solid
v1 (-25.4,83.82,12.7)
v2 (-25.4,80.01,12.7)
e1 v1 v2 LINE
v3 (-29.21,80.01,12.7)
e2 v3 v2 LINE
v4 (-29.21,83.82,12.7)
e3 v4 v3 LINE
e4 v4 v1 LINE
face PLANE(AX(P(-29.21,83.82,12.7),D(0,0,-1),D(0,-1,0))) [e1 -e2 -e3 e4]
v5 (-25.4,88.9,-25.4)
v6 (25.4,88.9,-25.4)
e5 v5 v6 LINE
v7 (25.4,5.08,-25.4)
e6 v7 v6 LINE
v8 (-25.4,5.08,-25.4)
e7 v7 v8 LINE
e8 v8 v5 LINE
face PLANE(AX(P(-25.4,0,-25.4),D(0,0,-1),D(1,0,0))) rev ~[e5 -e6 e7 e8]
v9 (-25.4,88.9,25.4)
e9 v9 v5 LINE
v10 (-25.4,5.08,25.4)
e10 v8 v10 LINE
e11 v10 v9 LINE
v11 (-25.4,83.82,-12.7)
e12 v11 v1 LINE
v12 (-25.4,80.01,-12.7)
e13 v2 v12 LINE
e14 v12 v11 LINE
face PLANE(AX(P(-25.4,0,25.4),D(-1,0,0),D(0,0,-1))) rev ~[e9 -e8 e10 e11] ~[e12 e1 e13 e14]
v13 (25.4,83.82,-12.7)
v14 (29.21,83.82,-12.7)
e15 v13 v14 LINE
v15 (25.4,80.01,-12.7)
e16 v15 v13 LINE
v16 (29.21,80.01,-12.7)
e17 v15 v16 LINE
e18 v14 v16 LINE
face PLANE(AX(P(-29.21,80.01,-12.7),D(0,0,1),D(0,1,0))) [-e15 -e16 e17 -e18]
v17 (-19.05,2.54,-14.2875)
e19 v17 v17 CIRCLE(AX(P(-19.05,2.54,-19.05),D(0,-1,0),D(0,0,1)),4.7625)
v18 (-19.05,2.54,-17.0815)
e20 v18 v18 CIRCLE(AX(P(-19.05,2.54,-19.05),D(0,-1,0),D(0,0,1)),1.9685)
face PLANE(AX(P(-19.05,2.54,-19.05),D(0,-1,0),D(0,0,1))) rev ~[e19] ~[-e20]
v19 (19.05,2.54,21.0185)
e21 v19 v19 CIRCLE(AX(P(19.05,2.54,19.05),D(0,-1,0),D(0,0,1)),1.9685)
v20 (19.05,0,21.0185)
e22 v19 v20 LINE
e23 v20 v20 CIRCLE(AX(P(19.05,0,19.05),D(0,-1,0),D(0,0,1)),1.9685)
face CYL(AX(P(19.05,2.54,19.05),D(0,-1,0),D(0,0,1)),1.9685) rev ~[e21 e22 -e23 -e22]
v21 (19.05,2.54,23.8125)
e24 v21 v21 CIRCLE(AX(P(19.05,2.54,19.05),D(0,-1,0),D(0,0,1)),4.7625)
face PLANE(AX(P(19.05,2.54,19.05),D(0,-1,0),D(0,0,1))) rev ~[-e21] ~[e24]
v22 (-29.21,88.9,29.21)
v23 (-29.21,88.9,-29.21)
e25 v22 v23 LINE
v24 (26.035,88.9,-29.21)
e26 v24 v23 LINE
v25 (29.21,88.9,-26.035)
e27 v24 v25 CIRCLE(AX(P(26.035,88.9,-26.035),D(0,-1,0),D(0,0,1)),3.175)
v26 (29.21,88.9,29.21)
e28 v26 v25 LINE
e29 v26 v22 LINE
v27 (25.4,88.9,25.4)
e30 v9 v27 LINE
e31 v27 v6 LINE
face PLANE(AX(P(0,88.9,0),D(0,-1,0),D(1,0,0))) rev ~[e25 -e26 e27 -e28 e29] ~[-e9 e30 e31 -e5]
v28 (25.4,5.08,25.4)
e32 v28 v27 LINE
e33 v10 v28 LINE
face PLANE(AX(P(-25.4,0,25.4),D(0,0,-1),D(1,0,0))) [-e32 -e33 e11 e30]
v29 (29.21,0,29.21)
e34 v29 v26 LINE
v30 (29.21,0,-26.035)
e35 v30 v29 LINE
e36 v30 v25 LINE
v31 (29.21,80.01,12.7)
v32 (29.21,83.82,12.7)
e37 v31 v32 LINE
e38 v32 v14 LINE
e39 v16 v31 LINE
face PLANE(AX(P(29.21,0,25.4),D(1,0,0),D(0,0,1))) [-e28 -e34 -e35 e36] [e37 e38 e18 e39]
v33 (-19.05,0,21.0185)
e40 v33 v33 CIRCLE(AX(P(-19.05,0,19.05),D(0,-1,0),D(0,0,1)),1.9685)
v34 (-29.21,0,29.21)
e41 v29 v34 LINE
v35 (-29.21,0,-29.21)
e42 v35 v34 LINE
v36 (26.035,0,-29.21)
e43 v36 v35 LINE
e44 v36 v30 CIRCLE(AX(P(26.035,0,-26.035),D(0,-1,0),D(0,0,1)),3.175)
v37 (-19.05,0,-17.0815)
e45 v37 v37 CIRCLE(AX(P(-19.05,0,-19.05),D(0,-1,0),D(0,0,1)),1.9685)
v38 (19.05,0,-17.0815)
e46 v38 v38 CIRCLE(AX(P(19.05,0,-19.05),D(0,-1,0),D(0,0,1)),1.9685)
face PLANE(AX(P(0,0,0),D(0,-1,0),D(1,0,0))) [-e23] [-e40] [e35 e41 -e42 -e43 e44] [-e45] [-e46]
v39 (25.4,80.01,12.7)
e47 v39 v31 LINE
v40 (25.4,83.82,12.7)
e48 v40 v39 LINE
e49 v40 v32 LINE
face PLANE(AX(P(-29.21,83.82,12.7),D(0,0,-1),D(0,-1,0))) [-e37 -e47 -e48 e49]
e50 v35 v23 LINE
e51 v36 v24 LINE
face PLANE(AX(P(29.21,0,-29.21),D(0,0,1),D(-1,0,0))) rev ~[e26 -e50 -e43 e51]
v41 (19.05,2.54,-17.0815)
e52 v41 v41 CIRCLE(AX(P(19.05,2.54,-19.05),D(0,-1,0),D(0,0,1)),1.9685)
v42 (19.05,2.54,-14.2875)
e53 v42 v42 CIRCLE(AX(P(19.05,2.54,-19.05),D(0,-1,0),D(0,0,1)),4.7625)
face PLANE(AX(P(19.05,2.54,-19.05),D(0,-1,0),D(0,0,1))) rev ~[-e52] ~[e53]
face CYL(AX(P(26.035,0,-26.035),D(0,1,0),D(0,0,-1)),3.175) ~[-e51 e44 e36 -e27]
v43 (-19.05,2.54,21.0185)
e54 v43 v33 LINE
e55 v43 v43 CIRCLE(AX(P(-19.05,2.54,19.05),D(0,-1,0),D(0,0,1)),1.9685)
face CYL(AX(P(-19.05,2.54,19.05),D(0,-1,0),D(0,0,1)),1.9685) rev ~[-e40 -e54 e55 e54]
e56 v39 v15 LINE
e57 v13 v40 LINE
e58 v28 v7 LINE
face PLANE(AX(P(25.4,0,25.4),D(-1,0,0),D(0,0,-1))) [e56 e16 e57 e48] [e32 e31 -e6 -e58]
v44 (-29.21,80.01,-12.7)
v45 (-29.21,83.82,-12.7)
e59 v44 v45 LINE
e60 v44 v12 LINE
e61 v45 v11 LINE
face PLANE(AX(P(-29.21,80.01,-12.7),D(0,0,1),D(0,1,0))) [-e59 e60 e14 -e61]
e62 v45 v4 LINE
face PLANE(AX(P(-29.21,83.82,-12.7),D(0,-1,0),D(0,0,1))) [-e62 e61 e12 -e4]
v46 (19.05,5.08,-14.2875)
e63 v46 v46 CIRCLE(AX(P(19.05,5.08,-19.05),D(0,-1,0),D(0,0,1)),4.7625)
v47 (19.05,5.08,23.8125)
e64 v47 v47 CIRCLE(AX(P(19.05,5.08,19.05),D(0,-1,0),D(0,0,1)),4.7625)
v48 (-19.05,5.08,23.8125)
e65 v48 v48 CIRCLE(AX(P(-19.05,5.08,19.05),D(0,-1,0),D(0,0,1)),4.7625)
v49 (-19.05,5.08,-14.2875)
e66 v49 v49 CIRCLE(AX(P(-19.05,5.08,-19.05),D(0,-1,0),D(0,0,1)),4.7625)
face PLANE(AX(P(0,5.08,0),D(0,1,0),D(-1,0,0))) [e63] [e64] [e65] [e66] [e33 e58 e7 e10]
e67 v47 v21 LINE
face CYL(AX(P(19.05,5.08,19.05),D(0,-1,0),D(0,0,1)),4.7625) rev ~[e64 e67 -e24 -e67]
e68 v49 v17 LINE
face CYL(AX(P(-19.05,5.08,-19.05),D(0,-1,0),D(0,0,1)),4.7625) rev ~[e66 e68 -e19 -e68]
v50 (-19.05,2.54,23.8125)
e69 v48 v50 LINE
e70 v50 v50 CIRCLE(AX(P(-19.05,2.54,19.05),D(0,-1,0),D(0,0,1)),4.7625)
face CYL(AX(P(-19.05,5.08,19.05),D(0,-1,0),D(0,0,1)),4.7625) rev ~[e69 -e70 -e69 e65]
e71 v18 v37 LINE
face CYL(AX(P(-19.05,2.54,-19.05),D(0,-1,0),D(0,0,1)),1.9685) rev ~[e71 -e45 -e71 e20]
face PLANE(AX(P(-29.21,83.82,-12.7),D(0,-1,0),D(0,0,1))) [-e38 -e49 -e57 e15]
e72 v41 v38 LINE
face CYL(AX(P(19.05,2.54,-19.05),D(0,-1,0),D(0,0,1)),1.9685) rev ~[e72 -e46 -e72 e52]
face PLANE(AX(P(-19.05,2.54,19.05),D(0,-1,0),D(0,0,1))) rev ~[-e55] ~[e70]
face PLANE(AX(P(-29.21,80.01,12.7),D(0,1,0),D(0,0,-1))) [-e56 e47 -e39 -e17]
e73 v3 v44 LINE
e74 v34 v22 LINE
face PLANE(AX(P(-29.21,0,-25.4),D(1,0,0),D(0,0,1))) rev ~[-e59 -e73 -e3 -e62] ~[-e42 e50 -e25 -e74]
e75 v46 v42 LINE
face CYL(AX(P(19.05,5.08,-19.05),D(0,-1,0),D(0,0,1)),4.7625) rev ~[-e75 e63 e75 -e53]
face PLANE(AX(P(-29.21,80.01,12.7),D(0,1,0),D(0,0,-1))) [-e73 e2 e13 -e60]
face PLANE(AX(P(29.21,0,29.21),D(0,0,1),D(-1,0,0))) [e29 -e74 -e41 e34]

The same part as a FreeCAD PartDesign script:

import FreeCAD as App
import Part
import Sketcher
from FreeCAD import Vector
Q = App.Units.Quantity


def edges_at(feature, points):
    """Names of the edges that pass closest to the given points."""
    edges = feature.Shape.Edges
    near = lambda p: min(range(len(edges)), key=lambda i: edges[i].distToShape(Part.Vertex(*p))[0])
    return sorted({f"Edge{near(p) + 1}" for p in points})

doc = App.newDocument("Part")
body = doc.addObject("PartDesign::Body", "Body")

sketch1 = body.newObject("Sketcher::SketchObject", "Sketch")
sketch1.AttachmentSupport = (doc.getObject("XZ_Plane"), [""])
sketch1.MapMode = "FlatFace"
sketch1.addGeometry([
    Part.LineSegment(Vector(-25, -25, 0), Vector(-25, 25, 0)),
    Part.LineSegment(Vector(-25, 25, 0), Vector(25, 25, 0)),
    Part.LineSegment(Vector(25, 25, 0), Vector(25, -25, 0)),
    Part.LineSegment(Vector(25, -25, 0), Vector(-25, -25, 0)),
], False)
sketch1.addConstraint([
    Sketcher.Constraint("Coincident", 0, 2, 1, 1),
    Sketcher.Constraint("Coincident", 1, 2, 2, 1),
    Sketcher.Constraint("Coincident", 2, 2, 3, 1),
    Sketcher.Constraint("Coincident", 3, 2, 0, 1),
    Sketcher.Constraint("Vertical", 0),
    Sketcher.Constraint("Horizontal", 1),
    Sketcher.Constraint("Vertical", 2),
    Sketcher.Constraint("Horizontal", 3),
    Sketcher.Constraint("Symmetric", 0, 2, 2, 2, -1, 1),
    Sketcher.Constraint("Equal", 3, 0),
    Sketcher.Constraint("DistanceX", 1, 1, 1, 2, Q("2 in")),
])
pad1 = body.newObject("PartDesign::Pad", "Pad")
pad1.Profile = sketch1
pad1.Length = Q("0.2 in")
pad1.Reversed = True

sketch2 = body.newObject("Sketcher::SketchObject", "Sketch001")
sketch2.AttachmentSupport = (doc.getObject("XZ_Plane"), [""])
sketch2.MapMode = "FlatFace"
sketch2.AttachmentOffset = App.Placement(Vector(0, 0, -0.2 * 25.4), App.Rotation())
sketch2.addGeometry([
    Part.Circle(Vector(-19.1, 19.1, 0), Vector(0, 0, 1), 2),
    Part.Circle(Vector(19.1, 19.1, 0), Vector(0, 0, 1), 2),
    Part.Circle(Vector(19.1, -19.1, 0), Vector(0, 0, 1), 2),
    Part.Circle(Vector(-19.1, -19.1, 0), Vector(0, 0, 1), 2),
], False)
sketch2.addConstraint([
    Sketcher.Constraint("Equal", 0, 1),
    Sketcher.Constraint("Equal", 1, 2),
    Sketcher.Constraint("Equal", 2, 3),
    Sketcher.Constraint("Symmetric", 0, 3, 2, 3, -1, 1),
    Sketcher.Constraint("Symmetric", 1, 3, 3, 3, -1, 1),
    Sketcher.Constraint("Symmetric", 0, 3, 1, 3, -2),
    Sketcher.Constraint("Diameter", 0, Q("0.155 in")),
    Sketcher.Constraint("DistanceX", 0, 3, 1, 3, Q("1.5 in")),
    Sketcher.Constraint("DistanceY", 2, 3, 1, 3, Q("1.5 in")),
])
doc.recompute()
hole = body.newObject("PartDesign::Hole", "Hole")
hole.Profile = sketch2
hole.ThreadType = "None"
hole.Diameter = Q("0.155 in")
hole.DepthType = "ThroughAll"
hole.HoleCutType = "Counterbore"
hole.HoleCutDiameter = Q("0.375 in")
hole.HoleCutDepth = Q("0.1 in")
hole.Reversed = True

sketch3 = body.newObject("Sketcher::SketchObject", "Sketch002")
sketch3.AttachmentSupport = (doc.getObject("XZ_Plane"), [""])
sketch3.MapMode = "FlatFace"
sketch3.addGeometry([
    Part.LineSegment(Vector(-29, 29, 0), Vector(-29, -29, 0)),
    Part.LineSegment(Vector(-29, -29, 0), Vector(29, -29, 0)),
    Part.LineSegment(Vector(29, -29, 0), Vector(29, 29, 0)),
    Part.LineSegment(Vector(29, 29, 0), Vector(-29, 29, 0)),
    Part.LineSegment(Vector(-25, -25, 0), Vector(-25, 25, 0)),
    Part.LineSegment(Vector(-25, 25, 0), Vector(25, 25, 0)),
    Part.LineSegment(Vector(25, 25, 0), Vector(25, -25, 0)),
    Part.LineSegment(Vector(25, -25, 0), Vector(-25, -25, 0)),
], False)
sketch3.addConstraint([
    Sketcher.Constraint("Coincident", 0, 2, 1, 1),
    Sketcher.Constraint("Coincident", 1, 2, 2, 1),
    Sketcher.Constraint("Coincident", 2, 2, 3, 1),
    Sketcher.Constraint("Coincident", 3, 2, 0, 1),
    Sketcher.Constraint("Coincident", 4, 2, 5, 1),
    Sketcher.Constraint("Coincident", 5, 2, 6, 1),
    Sketcher.Constraint("Coincident", 6, 2, 7, 1),
    Sketcher.Constraint("Coincident", 7, 2, 4, 1),
    Sketcher.Constraint("Vertical", 0),
    Sketcher.Constraint("Horizontal", 1),
    Sketcher.Constraint("Vertical", 2),
    Sketcher.Constraint("Horizontal", 3),
    Sketcher.Constraint("Vertical", 4),
    Sketcher.Constraint("Horizontal", 5),
    Sketcher.Constraint("Vertical", 6),
    Sketcher.Constraint("Horizontal", 7),
    Sketcher.Constraint("Symmetric", 0, 2, 2, 2, -1, 1),
    Sketcher.Constraint("Symmetric", 4, 2, 6, 2, -1, 1),
    Sketcher.Constraint("Equal", 3, 0),
    Sketcher.Constraint("Equal", 7, 4),
    Sketcher.Constraint("DistanceX", 1, 1, 1, 2, Q("2.3 in")),
    Sketcher.Constraint("DistanceX", 5, 1, 5, 2, Q("2 in")),
])
pad2 = body.newObject("PartDesign::Pad", "Pad001")
pad2.Profile = sketch3
pad2.Length = Q("3.5 in")
pad2.Reversed = True
doc.recompute()

fillet = body.newObject("PartDesign::Fillet", "Fillet")
fillet.Base = (pad2, edges_at(pad2, [(29.21, 44.45, -29.21)]))
fillet.Radius = Q("0.125 in")

sketch4 = body.newObject("Sketcher::SketchObject", "Sketch003")
sketch4.AttachmentSupport = (doc.getObject("YZ_Plane"), [""])
sketch4.MapMode = "FlatFace"
sketch4.AttachmentOffset = App.Placement(Vector(0, 0, -1.15 * 25.4), App.Rotation())
sketch4.addGeometry([
    Part.LineSegment(Vector(83.8, 12.7, 0), Vector(83.8, -12.7, 0)),
    Part.LineSegment(Vector(83.8, -12.7, 0), Vector(80, -12.7, 0)),
    Part.LineSegment(Vector(80, -12.7, 0), Vector(80, 12.7, 0)),
    Part.LineSegment(Vector(80, 12.7, 0), Vector(83.8, 12.7, 0)),
], False)
sketch4.addConstraint([
    Sketcher.Constraint("Coincident", 0, 2, 1, 1),
    Sketcher.Constraint("Coincident", 1, 2, 2, 1),
    Sketcher.Constraint("Coincident", 2, 2, 3, 1),
    Sketcher.Constraint("Coincident", 3, 2, 0, 1),
    Sketcher.Constraint("Vertical", 0),
    Sketcher.Constraint("Horizontal", 1),
    Sketcher.Constraint("Vertical", 2),
    Sketcher.Constraint("Horizontal", 3),
    Sketcher.Constraint("DistanceY", 0, 2, 0, 1, Q("1 in")),
    Sketcher.Constraint("DistanceX", 1, 2, 1, 1, Q("0.15 in")),
    Sketcher.Constraint("DistanceX", -1, 1, 0, 2, Q("3.3 in")),
    Sketcher.Constraint("DistanceY", 0, 2, -1, 1, Q("0.5 in")),
])
pocket1 = body.newObject("PartDesign::Pocket", "Pocket")
pocket1.Profile = sketch4
pocket1.Type = "ThroughAll"
pocket1.Reversed = True

doc.recompute()
